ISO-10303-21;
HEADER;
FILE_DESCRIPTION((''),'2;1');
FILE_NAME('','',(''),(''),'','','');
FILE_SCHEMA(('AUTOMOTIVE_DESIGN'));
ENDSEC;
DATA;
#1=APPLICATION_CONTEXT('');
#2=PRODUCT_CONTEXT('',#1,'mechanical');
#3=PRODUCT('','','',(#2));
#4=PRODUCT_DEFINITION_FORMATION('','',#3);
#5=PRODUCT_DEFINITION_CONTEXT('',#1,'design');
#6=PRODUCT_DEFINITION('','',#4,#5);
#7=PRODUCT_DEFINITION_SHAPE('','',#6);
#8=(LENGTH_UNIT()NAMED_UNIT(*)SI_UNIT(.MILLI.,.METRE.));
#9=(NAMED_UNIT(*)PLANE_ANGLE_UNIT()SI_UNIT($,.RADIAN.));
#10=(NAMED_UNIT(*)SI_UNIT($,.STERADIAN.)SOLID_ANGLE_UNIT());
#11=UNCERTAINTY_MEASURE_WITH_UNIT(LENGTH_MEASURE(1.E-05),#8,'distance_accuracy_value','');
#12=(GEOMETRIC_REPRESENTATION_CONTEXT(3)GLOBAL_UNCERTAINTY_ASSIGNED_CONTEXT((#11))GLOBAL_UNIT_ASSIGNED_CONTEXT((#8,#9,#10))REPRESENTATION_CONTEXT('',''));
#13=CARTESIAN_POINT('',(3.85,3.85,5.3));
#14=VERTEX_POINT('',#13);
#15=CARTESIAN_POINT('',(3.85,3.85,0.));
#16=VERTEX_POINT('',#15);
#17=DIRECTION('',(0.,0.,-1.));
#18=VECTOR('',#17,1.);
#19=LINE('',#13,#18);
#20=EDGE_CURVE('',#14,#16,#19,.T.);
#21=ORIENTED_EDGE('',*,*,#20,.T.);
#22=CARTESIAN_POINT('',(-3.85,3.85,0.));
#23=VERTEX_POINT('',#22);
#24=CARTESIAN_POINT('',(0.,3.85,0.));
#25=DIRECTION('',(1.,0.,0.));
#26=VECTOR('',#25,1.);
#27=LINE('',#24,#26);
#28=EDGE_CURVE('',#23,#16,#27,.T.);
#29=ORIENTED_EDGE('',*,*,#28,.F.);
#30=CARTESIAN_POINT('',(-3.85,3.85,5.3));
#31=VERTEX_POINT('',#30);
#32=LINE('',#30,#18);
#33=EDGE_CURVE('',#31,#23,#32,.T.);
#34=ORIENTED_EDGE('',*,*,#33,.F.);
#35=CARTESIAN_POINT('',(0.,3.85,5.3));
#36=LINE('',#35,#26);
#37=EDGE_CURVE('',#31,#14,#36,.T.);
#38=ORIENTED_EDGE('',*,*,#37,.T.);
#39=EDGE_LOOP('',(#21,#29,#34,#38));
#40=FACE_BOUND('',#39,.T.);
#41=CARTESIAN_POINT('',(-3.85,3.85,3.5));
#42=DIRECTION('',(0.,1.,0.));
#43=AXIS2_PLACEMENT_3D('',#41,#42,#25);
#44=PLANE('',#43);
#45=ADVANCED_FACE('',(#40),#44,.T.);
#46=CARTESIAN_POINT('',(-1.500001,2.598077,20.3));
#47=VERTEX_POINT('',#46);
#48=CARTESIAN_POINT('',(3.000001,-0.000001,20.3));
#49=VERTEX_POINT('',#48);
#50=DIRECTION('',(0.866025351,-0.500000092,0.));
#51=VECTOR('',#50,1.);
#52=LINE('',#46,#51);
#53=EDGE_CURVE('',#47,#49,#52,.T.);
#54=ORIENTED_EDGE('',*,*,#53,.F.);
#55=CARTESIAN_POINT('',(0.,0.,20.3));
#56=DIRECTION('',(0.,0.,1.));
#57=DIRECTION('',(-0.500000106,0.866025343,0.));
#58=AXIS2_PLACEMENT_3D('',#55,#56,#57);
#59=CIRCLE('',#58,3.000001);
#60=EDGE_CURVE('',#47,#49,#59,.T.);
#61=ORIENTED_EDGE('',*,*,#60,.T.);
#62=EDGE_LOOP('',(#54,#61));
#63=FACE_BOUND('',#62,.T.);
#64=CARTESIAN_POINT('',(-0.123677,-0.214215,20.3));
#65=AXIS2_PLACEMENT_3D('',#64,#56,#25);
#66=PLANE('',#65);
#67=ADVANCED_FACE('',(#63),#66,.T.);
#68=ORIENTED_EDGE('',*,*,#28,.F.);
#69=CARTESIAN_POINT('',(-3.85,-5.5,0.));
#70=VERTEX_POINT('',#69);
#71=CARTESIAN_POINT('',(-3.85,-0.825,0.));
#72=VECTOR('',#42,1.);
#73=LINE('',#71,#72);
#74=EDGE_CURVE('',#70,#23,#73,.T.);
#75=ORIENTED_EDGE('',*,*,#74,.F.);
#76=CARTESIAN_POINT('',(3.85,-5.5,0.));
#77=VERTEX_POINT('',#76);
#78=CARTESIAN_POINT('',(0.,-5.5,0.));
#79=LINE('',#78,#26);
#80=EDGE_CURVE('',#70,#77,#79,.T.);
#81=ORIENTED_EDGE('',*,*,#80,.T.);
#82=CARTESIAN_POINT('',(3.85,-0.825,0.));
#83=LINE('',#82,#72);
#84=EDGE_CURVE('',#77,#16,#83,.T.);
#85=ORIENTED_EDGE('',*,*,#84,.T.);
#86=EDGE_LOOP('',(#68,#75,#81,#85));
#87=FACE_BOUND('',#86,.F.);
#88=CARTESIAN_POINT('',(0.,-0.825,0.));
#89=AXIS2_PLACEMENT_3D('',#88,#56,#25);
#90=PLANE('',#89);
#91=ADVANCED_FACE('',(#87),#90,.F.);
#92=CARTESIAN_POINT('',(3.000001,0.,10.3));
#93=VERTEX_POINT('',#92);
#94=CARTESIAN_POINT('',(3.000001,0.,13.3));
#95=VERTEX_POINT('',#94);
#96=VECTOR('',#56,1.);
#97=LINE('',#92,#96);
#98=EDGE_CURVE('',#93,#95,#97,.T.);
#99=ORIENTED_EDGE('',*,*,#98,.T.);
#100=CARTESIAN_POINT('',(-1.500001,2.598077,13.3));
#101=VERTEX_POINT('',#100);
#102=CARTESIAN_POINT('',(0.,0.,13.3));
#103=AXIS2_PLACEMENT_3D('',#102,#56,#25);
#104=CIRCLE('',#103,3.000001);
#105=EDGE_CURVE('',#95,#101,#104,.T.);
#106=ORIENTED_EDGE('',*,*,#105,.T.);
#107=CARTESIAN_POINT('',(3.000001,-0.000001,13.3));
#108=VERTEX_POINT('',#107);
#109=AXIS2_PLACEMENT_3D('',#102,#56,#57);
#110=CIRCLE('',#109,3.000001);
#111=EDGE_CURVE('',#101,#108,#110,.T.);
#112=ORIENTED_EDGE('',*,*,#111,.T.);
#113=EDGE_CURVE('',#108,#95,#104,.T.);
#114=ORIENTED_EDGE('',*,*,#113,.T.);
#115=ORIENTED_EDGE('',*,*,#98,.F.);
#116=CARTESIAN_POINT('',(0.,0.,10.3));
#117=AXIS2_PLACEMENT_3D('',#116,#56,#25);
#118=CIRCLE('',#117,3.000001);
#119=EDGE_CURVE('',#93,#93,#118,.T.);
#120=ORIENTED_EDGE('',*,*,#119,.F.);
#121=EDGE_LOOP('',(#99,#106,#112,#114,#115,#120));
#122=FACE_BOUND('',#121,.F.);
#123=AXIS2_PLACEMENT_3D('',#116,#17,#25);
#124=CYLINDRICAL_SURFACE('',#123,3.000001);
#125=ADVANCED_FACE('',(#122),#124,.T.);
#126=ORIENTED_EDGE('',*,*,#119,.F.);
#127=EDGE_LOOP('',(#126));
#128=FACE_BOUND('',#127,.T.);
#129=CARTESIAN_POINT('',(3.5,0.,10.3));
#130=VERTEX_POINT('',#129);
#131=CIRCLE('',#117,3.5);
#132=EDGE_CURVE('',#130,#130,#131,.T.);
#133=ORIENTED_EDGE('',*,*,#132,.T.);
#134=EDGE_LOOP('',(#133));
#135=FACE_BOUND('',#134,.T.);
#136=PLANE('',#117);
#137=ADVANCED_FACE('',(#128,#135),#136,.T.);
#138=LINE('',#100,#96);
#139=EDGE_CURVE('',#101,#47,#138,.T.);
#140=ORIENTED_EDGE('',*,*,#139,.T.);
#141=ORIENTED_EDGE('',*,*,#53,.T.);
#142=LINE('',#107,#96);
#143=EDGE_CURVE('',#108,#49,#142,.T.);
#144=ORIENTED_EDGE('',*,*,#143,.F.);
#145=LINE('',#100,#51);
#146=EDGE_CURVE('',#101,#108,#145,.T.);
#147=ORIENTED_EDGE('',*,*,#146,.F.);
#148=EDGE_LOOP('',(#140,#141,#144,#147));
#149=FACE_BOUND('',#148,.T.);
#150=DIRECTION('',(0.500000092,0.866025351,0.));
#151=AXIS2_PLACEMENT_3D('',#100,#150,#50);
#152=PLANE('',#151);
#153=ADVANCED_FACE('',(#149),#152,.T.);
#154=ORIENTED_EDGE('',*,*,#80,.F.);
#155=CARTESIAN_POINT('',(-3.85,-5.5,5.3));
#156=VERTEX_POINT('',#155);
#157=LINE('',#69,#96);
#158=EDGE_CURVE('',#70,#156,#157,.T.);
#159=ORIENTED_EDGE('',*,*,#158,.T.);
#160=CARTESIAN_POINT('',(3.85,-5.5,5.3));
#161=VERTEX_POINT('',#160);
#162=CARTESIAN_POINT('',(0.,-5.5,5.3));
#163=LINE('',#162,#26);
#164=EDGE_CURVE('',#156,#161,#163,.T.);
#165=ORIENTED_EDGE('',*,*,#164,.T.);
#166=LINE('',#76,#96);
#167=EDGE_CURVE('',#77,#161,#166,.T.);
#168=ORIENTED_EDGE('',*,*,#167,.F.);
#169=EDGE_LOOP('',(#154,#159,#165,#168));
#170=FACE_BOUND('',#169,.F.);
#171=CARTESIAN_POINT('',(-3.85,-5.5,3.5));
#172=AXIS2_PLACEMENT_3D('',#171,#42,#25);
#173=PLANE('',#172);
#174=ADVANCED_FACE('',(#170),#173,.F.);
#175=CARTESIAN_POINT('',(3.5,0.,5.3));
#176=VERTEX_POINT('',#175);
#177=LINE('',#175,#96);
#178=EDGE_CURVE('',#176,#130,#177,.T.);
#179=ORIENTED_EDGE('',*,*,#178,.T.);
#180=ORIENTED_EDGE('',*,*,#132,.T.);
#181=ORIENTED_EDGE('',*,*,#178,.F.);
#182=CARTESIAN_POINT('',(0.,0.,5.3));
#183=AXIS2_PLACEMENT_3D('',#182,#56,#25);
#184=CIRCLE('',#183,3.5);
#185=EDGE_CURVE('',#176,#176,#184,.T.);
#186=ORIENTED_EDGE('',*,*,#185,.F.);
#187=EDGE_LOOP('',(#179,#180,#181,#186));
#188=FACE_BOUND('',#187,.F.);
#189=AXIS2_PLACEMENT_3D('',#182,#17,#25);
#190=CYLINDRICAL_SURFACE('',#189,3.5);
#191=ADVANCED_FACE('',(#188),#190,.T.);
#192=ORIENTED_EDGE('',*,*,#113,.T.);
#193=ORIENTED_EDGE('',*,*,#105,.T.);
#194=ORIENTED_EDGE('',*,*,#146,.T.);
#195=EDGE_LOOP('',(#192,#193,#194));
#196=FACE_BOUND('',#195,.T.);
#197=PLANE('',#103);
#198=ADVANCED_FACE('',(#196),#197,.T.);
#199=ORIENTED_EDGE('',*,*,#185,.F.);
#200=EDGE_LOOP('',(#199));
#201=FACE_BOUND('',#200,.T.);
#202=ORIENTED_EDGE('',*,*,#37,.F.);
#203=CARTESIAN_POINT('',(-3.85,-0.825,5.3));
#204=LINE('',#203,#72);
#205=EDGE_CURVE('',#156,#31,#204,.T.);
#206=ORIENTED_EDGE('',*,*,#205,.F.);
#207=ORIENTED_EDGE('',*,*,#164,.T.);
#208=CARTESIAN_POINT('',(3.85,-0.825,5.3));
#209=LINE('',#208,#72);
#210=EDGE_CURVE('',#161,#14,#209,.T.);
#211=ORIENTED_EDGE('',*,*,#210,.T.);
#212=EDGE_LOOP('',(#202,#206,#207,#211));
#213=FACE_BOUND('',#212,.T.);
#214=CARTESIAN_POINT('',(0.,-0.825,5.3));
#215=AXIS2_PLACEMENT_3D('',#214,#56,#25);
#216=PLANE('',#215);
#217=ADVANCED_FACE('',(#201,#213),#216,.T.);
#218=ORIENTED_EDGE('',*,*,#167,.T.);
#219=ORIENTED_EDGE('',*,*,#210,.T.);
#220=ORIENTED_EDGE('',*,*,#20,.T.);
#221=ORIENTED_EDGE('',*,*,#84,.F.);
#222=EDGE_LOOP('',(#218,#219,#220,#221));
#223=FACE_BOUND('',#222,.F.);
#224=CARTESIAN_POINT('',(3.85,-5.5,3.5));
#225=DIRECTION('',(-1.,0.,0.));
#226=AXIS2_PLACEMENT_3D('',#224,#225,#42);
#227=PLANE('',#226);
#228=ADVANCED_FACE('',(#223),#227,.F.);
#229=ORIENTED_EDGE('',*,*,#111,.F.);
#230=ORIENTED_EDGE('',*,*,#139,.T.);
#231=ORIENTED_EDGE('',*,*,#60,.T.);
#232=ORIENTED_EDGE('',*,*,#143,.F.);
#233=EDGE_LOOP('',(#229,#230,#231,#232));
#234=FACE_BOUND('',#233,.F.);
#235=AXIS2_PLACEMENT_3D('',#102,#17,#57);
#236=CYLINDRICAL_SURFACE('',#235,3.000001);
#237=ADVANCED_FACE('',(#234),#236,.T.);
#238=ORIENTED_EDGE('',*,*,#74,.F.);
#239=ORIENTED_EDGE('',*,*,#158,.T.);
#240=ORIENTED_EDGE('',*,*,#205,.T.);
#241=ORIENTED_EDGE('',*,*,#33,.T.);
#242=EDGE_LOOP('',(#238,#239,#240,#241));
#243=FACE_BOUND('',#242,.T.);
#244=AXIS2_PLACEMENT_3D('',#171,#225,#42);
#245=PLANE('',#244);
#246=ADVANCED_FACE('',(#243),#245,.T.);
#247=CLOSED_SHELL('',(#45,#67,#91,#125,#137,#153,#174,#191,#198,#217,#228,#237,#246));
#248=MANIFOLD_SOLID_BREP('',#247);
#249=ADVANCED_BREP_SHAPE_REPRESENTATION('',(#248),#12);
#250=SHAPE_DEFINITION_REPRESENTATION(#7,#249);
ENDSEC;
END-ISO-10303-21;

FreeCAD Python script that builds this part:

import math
import FreeCAD as App
import Part
import Sketcher
Q = App.Units.Quantity


def add_polygon(sketch, points):
    """Adds a closed chain of lines whose ends are joined by coincident constraints."""
    first, n = sketch.GeometryCount, len(points)
    for a, b in zip(points, points[1:] + points[:1]):
        sketch.addGeometry(Part.LineSegment(App.Vector(*a, 0), App.Vector(*b, 0)), False)
    for i in range(n):
        sketch.addConstraint(Sketcher.Constraint("Coincident", first + i, 2, first + (i + 1) % n, 1))

doc = App.newDocument("Part")
body = doc.addObject("PartDesign::Body", "Body")

# Sketch on XY plane
sketch1 = body.newObject("Sketcher::SketchObject", "Sketch")
sketch1.AttachmentSupport = (doc.getObject("XY_Plane"), [""])
sketch1.MapMode = "FlatFace"
add_polygon(sketch1, [(-4, 4), (-4, -6), (4, -6), (4, 4)])  # lines 0-3
sketch1.addConstraint([
    Sketcher.Constraint("Vertical", 0),
    Sketcher.Constraint("Horizontal", 1),
    Sketcher.Constraint("Vertical", 2),
    Sketcher.Constraint("Horizontal", 3),
    Sketcher.Constraint("DistanceX", 1, 1, 1, 2, 7.7),
    Sketcher.Constraint("DistanceY", 0, 2, 0, 1, 9.35),
    Sketcher.Constraint("DistanceY", 0, 2, -1, 1, 5.5),
    Sketcher.Constraint("DistanceX", 0, 2, -1, 1, 3.85),
])
pad1 = body.newObject("PartDesign::Pad", "Pad")
pad1.Profile = sketch1
pad1.Length = 1

# Sketch on XY plane
sketch2 = body.newObject("Sketcher::SketchObject", "Sketch001")
sketch2.AttachmentSupport = (doc.getObject("XY_Plane"), [""])
sketch2.MapMode = "FlatFace"
sketch2.AttachmentOffset = App.Placement(App.Vector(0, 0, 1), App.Rotation())
add_polygon(sketch2, [(-4, 4), (-4, -6), (4, -6), (4, 4)])  # lines 0-3
sketch2.addConstraint([
    Sketcher.Constraint("Vertical", 0),
    Sketcher.Constraint("Horizontal", 1),
    Sketcher.Constraint("Vertical", 2),
    Sketcher.Constraint("Horizontal", 3),
    Sketcher.Constraint("DistanceX", 1, 1, 1, 2, 7.7),
    Sketcher.Constraint("DistanceY", 0, 2, 0, 1, 9.35),
    Sketcher.Constraint("DistanceY", 0, 2, -1, 1, 5.5),
    Sketcher.Constraint("DistanceX", 0, 2, -1, 1, 3.85),
])
pad2 = body.newObject("PartDesign::Pad", "Pad001")
pad2.Profile = sketch2
pad2.Length = 2.5

# Sketch on XY plane
sketch3 = body.newObject("Sketcher::SketchObject", "Sketch002")
sketch3.AttachmentSupport = (doc.getObject("XY_Plane"), [""])
sketch3.MapMode = "FlatFace"
sketch3.AttachmentOffset = App.Placement(App.Vector(0, 0, 3.5), App.Rotation())
add_polygon(sketch3, [(-4, 4), (-4, -6), (4, -6), (4, 4)])  # lines 0-3
sketch3.addConstraint([
    Sketcher.Constraint("Vertical", 0),
    Sketcher.Constraint("Horizontal", 1),
    Sketcher.Constraint("Vertical", 2),
    Sketcher.Constraint("Horizontal", 3),
    Sketcher.Constraint("DistanceX", 1, 1, 1, 2, 7.7),
    Sketcher.Constraint("DistanceY", 0, 2, 0, 1, 9.35),
    Sketcher.Constraint("DistanceY", 0, 2, -1, 1, 5.5),
    Sketcher.Constraint("DistanceX", 0, 2, -1, 1, 3.85),
])
pad3 = body.newObject("PartDesign::Pad", "Pad002")
pad3.Profile = sketch3
pad3.Length = 1.8

# Sketch on XY plane
sketch4 = body.newObject("Sketcher::SketchObject", "Sketch003")
sketch4.AttachmentSupport = (doc.getObject("XY_Plane"), [""])
sketch4.MapMode = "FlatFace"
sketch4.AttachmentOffset = App.Placement(App.Vector(0, 0, 5.3), App.Rotation())
sketch4.addGeometry(Part.Circle(App.Vector(0, 0, 0), App.Vector(0, 0, 1), 3.5), False)
sketch4.addConstraint([
    Sketcher.Constraint("Coincident", 0, 3, -1, 1),
    Sketcher.Constraint("Diameter", 0, 7.0),
])
pad4 = body.newObject("PartDesign::Pad", "Pad003")
pad4.Profile = sketch4
pad4.Length = 5

# Sketch on XY plane
sketch5 = body.newObject("Sketcher::SketchObject", "Sketch004")
sketch5.AttachmentSupport = (doc.getObject("XY_Plane"), [""])
sketch5.MapMode = "FlatFace"
sketch5.AttachmentOffset = App.Placement(App.Vector(0, 0, 10.3), App.Rotation())
sketch5.addGeometry(Part.Circle(App.Vector(0, 0, 0), App.Vector(0, 0, 1), 3), False)
sketch5.addConstraint([
    Sketcher.Constraint("Coincident", 0, 3, -1, 1),
    Sketcher.Constraint("Diameter", 0, 6.000002),
])
pad5 = body.newObject("PartDesign::Pad", "Pad004")
pad5.Profile = sketch5
pad5.Length = 3

# Sketch on XY plane
sketch6 = body.newObject("Sketcher::SketchObject", "Sketch005")
sketch6.AttachmentSupport = (doc.getObject("XY_Plane"), [""])
sketch6.MapMode = "FlatFace"
sketch6.AttachmentOffset = App.Placement(App.Vector(0, 0, 13.3), App.Rotation())
sketch6.addGeometry([
    Part.ArcOfCircle(Part.Circle(App.Vector(0, 0, 0), App.Vector(0, 0, 1), 3), math.radians(120), math.radians(360)),
    Part.LineSegment(App.Vector(3, 0, 0), App.Vector(-1.5, 2.6, 0)),
], False)
sketch6.addConstraint([
    Sketcher.Constraint("Coincident", 0, 1, 1, 2),
    Sketcher.Constraint("Coincident", 1, 1, 0, 2),
    Sketcher.Constraint("Coincident", 0, 3, -1, 1),
    Sketcher.Constraint("PointOnObject", 1, 1, -1),
    Sketcher.Constraint("Radius", 0, 3.000001),
    Sketcher.Constraint("Angle", 1, Q("149.999994 deg")),
])
pad6 = body.newObject("PartDesign::Pad", "Pad005")
pad6.Profile = sketch6
pad6.Length = 7

doc.recompute()
